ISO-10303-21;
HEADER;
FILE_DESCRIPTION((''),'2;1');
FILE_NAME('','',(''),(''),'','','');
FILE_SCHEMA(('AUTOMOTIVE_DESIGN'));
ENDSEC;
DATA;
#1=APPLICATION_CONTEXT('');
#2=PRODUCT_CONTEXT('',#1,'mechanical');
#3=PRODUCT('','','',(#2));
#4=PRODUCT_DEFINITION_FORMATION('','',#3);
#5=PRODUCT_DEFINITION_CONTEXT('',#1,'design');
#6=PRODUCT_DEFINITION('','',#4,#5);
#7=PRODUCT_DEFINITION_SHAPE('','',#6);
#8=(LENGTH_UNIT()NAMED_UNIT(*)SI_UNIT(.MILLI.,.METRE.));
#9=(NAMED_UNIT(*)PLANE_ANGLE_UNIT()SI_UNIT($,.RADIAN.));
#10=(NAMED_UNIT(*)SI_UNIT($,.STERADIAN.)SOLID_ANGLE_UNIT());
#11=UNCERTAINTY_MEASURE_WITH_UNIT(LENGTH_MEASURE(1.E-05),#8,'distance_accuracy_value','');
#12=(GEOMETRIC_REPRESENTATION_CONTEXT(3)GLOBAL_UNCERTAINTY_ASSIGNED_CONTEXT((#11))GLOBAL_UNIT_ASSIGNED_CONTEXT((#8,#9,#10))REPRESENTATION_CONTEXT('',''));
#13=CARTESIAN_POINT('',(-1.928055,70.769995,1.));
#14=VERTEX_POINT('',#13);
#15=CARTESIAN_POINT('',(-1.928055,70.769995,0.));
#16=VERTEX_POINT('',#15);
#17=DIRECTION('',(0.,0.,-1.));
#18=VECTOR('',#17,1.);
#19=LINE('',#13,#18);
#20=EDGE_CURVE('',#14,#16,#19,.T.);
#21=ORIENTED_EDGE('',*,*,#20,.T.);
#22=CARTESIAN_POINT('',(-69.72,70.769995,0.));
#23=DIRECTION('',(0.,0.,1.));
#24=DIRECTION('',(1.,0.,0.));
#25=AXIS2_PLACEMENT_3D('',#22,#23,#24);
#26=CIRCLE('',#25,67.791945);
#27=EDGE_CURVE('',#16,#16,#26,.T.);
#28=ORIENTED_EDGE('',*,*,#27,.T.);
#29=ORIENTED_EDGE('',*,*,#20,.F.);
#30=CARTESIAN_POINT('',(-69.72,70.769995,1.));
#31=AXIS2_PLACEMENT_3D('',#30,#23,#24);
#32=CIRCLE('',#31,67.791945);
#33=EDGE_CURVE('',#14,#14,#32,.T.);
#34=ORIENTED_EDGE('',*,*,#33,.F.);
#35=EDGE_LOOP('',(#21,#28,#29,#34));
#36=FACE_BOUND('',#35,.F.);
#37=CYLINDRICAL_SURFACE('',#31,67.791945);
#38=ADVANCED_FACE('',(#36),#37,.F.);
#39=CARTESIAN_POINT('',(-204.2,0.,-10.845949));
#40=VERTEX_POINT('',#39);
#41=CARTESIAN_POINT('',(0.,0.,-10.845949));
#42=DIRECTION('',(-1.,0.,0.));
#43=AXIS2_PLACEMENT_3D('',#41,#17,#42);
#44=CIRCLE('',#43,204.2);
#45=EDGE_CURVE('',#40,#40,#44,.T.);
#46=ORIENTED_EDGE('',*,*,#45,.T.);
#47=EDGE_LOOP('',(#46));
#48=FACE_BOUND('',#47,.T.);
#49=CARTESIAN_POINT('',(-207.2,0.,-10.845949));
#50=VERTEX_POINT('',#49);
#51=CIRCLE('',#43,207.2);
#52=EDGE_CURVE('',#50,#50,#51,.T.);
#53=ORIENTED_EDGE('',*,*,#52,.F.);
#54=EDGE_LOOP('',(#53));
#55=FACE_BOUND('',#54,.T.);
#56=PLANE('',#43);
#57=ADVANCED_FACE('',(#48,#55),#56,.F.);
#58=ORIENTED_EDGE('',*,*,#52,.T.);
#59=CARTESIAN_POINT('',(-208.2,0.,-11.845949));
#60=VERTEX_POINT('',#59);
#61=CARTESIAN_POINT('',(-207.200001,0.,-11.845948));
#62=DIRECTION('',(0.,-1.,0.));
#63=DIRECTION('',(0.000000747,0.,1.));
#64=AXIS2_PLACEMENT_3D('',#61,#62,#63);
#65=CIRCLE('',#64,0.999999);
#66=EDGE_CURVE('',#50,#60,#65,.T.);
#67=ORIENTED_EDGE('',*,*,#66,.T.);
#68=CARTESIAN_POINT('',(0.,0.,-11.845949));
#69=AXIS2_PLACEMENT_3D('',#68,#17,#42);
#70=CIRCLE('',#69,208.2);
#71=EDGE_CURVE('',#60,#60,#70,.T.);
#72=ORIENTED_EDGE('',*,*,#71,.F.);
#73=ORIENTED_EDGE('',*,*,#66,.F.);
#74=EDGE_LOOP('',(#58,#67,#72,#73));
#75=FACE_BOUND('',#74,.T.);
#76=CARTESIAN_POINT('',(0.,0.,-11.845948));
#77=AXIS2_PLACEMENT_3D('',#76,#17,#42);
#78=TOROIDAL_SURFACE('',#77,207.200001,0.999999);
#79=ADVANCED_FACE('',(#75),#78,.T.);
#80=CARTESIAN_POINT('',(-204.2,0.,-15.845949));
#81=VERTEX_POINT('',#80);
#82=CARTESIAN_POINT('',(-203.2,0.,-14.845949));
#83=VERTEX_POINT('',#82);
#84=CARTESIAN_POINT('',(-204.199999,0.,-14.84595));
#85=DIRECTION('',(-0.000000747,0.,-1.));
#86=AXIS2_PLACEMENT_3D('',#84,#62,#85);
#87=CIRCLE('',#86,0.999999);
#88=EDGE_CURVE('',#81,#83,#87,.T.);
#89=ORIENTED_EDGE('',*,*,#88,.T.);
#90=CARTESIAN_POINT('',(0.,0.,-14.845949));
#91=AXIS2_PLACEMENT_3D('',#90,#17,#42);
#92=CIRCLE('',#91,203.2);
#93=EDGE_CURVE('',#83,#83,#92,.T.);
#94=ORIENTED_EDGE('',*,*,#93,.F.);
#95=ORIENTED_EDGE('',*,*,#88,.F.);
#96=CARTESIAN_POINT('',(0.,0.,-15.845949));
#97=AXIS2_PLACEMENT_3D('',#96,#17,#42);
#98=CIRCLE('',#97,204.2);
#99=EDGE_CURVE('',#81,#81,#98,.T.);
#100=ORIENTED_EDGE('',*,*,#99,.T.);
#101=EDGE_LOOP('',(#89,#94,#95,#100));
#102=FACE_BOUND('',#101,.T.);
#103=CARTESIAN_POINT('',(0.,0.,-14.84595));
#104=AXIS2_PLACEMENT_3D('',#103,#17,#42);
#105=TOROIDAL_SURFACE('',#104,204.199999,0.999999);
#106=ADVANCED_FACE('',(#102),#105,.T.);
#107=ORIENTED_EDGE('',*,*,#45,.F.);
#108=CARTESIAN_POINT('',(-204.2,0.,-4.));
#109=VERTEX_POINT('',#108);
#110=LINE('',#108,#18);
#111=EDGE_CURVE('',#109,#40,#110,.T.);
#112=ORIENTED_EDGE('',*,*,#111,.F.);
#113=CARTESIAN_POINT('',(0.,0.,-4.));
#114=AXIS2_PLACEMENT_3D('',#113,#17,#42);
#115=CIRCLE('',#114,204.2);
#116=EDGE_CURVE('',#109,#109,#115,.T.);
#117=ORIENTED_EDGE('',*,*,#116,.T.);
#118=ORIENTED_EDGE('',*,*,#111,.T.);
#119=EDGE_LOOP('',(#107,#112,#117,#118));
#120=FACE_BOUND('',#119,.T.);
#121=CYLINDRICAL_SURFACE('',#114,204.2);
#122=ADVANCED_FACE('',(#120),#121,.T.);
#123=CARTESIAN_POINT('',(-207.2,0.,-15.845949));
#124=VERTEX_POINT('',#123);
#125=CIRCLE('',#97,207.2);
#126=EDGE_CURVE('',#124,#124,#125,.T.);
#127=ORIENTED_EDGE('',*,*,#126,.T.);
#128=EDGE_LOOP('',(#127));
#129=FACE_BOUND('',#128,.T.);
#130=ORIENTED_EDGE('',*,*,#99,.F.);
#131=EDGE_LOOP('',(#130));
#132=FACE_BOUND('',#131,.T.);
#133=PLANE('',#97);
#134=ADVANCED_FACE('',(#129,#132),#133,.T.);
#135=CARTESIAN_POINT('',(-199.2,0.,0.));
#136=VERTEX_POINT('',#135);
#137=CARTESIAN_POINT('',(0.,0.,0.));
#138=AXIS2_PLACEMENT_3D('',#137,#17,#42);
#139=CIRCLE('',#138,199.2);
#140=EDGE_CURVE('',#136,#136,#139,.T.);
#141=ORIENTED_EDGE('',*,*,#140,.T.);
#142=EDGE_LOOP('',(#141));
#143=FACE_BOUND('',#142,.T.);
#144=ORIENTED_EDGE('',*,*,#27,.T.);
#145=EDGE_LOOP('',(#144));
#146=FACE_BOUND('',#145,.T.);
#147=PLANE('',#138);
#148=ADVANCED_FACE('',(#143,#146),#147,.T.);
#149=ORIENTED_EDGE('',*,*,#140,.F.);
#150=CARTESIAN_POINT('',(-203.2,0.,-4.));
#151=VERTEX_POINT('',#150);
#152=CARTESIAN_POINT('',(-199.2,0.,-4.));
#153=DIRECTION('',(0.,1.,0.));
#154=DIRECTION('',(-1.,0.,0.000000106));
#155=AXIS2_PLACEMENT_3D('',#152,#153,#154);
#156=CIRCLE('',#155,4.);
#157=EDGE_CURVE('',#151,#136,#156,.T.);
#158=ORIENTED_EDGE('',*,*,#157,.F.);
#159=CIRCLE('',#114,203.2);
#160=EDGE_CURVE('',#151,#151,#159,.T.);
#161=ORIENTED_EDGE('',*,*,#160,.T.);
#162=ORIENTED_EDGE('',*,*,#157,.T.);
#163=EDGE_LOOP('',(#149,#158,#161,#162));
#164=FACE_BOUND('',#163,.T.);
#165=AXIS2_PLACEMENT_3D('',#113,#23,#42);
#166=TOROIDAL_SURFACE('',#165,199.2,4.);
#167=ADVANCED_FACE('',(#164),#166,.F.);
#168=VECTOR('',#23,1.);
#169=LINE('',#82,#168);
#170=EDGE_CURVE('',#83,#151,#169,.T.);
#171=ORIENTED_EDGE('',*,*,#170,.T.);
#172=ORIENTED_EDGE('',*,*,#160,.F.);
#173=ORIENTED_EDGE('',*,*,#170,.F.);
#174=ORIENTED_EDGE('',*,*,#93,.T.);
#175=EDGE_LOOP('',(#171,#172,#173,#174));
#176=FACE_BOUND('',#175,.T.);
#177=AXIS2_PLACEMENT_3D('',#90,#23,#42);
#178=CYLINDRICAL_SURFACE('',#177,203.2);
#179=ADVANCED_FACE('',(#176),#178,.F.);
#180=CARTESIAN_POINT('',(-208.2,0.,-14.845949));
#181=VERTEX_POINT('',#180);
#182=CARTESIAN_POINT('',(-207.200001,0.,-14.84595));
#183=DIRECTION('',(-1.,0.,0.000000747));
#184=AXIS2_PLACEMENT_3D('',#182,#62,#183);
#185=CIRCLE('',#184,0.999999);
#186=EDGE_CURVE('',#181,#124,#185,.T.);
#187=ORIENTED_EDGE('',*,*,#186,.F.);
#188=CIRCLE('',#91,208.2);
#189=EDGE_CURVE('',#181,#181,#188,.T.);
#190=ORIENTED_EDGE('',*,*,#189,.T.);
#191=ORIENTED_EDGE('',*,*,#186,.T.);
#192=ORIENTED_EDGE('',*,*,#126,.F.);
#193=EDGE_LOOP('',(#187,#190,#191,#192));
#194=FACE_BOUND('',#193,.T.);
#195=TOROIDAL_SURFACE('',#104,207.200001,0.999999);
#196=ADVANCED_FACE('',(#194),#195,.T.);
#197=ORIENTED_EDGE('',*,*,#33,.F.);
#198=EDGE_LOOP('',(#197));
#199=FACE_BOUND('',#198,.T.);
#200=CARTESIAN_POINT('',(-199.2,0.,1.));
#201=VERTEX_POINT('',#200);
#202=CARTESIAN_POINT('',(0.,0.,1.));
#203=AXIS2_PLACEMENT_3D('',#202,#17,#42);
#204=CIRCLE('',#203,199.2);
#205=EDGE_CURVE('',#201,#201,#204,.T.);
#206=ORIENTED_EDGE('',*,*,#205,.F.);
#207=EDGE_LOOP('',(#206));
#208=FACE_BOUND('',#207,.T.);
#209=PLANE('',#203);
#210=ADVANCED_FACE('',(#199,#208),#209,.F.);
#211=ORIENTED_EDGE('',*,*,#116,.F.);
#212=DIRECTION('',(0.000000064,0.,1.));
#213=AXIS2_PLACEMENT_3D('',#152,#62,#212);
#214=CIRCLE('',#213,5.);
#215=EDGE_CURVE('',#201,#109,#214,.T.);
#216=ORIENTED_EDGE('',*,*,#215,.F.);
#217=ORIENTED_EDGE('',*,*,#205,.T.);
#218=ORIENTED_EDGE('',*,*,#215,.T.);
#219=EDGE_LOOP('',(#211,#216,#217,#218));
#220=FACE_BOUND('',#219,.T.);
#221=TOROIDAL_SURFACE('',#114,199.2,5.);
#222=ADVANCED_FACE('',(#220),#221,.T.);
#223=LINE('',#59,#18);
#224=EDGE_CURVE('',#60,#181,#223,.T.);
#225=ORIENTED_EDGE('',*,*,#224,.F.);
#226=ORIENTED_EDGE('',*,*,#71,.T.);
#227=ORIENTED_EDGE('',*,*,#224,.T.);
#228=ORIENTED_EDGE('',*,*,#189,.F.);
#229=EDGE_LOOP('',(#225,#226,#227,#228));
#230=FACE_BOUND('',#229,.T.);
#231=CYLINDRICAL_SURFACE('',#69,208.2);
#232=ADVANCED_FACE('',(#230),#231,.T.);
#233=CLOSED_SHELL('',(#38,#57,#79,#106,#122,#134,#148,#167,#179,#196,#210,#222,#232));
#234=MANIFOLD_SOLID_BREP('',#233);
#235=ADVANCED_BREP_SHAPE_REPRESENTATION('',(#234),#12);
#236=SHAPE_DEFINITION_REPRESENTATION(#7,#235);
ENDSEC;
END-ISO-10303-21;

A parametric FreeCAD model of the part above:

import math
import FreeCAD as App
import Part
import Sketcher
Q = App.Units.Quantity

doc = App.newDocument("Part")
body = doc.addObject("PartDesign::Body", "Body")

sketch1 = doc.addObject("Sketcher::SketchObject", "Sketch")
body.addObject(sketch1)
sketch1.AttachmentSupport = (doc.XZ_Plane, [""])
sketch1.MapMode = "FlatFace"
sketch1.addGeometry(Part.LineSegment(App.Vector(-199.2, 0, 0), App.Vector(0, 0, 0)), False)
sketch1.addGeometry(Part.LineSegment(App.Vector(0, 0, 0), App.Vector(0, 1, 0)), False)
sketch1.addGeometry(Part.LineSegment(App.Vector(0, 1, 0), App.Vector(-199.2, 1, 0)), False)
sketch1.addGeometry(Part.ArcOfCircle(Part.Circle(App.Vector(-199.2, -4, 0), App.Vector(0, 0, 1), 5), math.radians(89.999996), math.radians(180.000004)), False)
sketch1.addGeometry(Part.LineSegment(App.Vector(-204.2, -4, 0), App.Vector(-204.2, -10.845949, 0)), False)
sketch1.addGeometry(Part.LineSegment(App.Vector(-204.2, -10.845949, 0), App.Vector(-207.2, -10.845949, 0)), False)
sketch1.addGeometry(Part.ArcOfCircle(Part.Circle(App.Vector(-207.200001, -11.845948, 0), App.Vector(0, 0, 1), 0.999999), math.radians(89.999957), math.radians(180.000043)), False)
sketch1.addGeometry(Part.LineSegment(App.Vector(-208.2, -11.845949, 0), App.Vector(-208.2, -14.845949, 0)), False)
sketch1.addGeometry(Part.ArcOfCircle(Part.Circle(App.Vector(-207.200001, -14.84595, 0), App.Vector(0, 0, 1), 0.999999), math.radians(179.999957), math.radians(270.000043)), False)
sketch1.addGeometry(Part.LineSegment(App.Vector(-207.2, -15.845949, 0), App.Vector(-204.2, -15.845949, 0)), False)
sketch1.addGeometry(Part.ArcOfCircle(Part.Circle(App.Vector(-204.199999, -14.84595, 0), App.Vector(0, 0, 1), 0.999999), math.radians(-90.000043), math.radians(0.000043)), False)
sketch1.addGeometry(Part.LineSegment(App.Vector(-203.2, -14.845949, 0), App.Vector(-203.2, -4, 0)), False)
sketch1.addGeometry(Part.ArcOfCircle(Part.Circle(App.Vector(-199.2, -4, 0), App.Vector(0, 0, 1), 4), math.radians(90.000006), math.radians(179.999994)), False)
sketch1.addConstraint(Sketcher.Constraint("Coincident", 0, 2, 1, 1))
sketch1.addConstraint(Sketcher.Constraint("Coincident", 1, 2, 2, 1))
sketch1.addConstraint(Sketcher.Constraint("Tangent", 2, 2, 3, 1))
sketch1.addConstraint(Sketcher.Constraint("Tangent", 3, 2, 4, 1))
sketch1.addConstraint(Sketcher.Constraint("Coincident", 4, 2, 5, 1))
sketch1.addConstraint(Sketcher.Constraint("Tangent", 5, 2, 6, 1))
sketch1.addConstraint(Sketcher.Constraint("Tangent", 6, 2, 7, 1))
sketch1.addConstraint(Sketcher.Constraint("Tangent", 7, 2, 8, 1))
sketch1.addConstraint(Sketcher.Constraint("Tangent", 8, 2, 9, 1))
sketch1.addConstraint(Sketcher.Constraint("Tangent", 9, 2, 10, 1))
sketch1.addConstraint(Sketcher.Constraint("Tangent", 10, 2, 11, 1))
sketch1.addConstraint(Sketcher.Constraint("Tangent", 11, 2, 12, 2))
sketch1.addConstraint(Sketcher.Constraint("Tangent", 12, 1, 0, 1))
sketch1.addConstraint(Sketcher.Constraint("Horizontal", 0))
sketch1.addConstraint(Sketcher.Constraint("Vertical", 1))
sketch1.addConstraint(Sketcher.Constraint("Horizontal", 2))
sketch1.addConstraint(Sketcher.Constraint("Vertical", 4))
sketch1.addConstraint(Sketcher.Constraint("Horizontal", 5))
sketch1.addConstraint(Sketcher.Constraint("Vertical", 7))
sketch1.addConstraint(Sketcher.Constraint("Horizontal", 9))
sketch1.addConstraint(Sketcher.Constraint("Vertical", 11))
sketch1.addConstraint(Sketcher.Constraint("Coincident", 0, 2, -1, 1))
sketch1.addConstraint(Sketcher.Constraint("Coincident", 12, 3, 3, 3))
sketch1.addConstraint(Sketcher.Constraint("Equal", 6, 8))
sketch1.addConstraint(Sketcher.Constraint("Equal", 8, 10))
sketch1.addConstraint(Sketcher.Constraint("Vertical", 10, 3, 3, 2))
sketch1.addConstraint(Sketcher.Constraint("Equal", 9, 7))
sketch1.addConstraint(Sketcher.Constraint("Radius", 3, Q("5 mm")))
sketch1.addConstraint(Sketcher.Constraint("Radius", 6, Q("0.999999 mm")))
sketch1.addConstraint(Sketcher.Constraint("DistanceX", 5, 2, 5, 1, Q("3 mm")))
sketch1.addConstraint(Sketcher.Constraint("DistanceX", 0, 1, 0, 2, Q("199.2 mm")))
sketch1.addConstraint(Sketcher.Constraint("DistanceY", 4, 2, 4, 1, Q("6.845949 mm")))
revolution = doc.addObject("PartDesign::Revolution", "Revolution")
body.addObject(revolution)
revolution.Profile = sketch1
revolution.ReferenceAxis = (sketch1, ["V_Axis"])
revolution.Angle = 360

sketch2 = doc.addObject("Sketcher::SketchObject", "Sketch001")
body.addObject(sketch2)
sketch2.AttachmentSupport = (doc.XY_Plane, [""])
sketch2.MapMode = "FlatFace"
sketch2.AttachmentOffset = App.Placement(App.Vector(0, 0, 1), App.Rotation())
sketch2.addGeometry(Part.Circle(App.Vector(-69.72, 70.769995, 0), App.Vector(0, 0, 1), 67.791945), False)
sketch2.addConstraint(Sketcher.Constraint("Diameter", 0, Q("135.58389 mm")))
sketch2.addConstraint(Sketcher.Constraint("DistanceX", 0, 3, -1, 1, Q("69.72 mm")))
sketch2.addConstraint(Sketcher.Constraint("DistanceY", -1, 1, 0, 3, Q("70.769995 mm")))
pocket1 = doc.addObject("PartDesign::Pocket", "Pocket")
body.addObject(pocket1)
pocket1.Profile = sketch2
pocket1.Type = "ThroughAll"

doc.recompute()
